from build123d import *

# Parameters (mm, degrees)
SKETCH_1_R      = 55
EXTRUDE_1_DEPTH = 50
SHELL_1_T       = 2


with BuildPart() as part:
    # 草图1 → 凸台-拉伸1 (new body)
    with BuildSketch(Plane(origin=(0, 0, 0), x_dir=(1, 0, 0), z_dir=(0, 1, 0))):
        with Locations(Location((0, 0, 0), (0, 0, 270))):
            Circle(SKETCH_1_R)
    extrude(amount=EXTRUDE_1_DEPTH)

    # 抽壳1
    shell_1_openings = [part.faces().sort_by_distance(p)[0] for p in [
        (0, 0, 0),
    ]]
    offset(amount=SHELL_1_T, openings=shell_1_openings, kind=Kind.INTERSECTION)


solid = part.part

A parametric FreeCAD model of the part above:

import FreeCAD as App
import Part
import Sketcher

V = App.Vector
Q = App.Units.Quantity


def faces_at(feature, points):
    """Names of the faces that lie closest to the given points."""
    faces = feature.Shape.Faces
    near = lambda p: min(range(len(faces)), key=lambda i: faces[i].distToShape(Part.Vertex(*p))[0])
    return sorted({f"Face{near(p) + 1}" for p in points})

doc = App.newDocument("Part")
params = doc.addObject("Spreadsheet::Sheet", "Params")
for row, (alias, value) in enumerate([
    ("sketch1_diameter", "110 mm"),
    ("pad1_length", "50 mm"),
    ("thickness_wall", "2 mm"),
], start=1):
    params.set(f"A{row}", alias)
    params.set(f"B{row}", "=" + value)
    params.setAlias(f"B{row}", alias)

body = doc.addObject("PartDesign::Body", "Body")

sketch1 = body.newObject("Sketcher::SketchObject", "Sketch")
sketch1.AttachmentSupport = (doc.getObject("XZ_Plane"), [""])
sketch1.MapMode = "FlatFace"
sketch1.addGeometry(Part.Circle(V(0, 0, 0), V(0, 0, 1), 55), False)
sketch1.addConstraint(Sketcher.Constraint("Coincident", 0, 3, -1, 1))
sketch1.addConstraint(Sketcher.Constraint("Diameter", 0, Q("110 mm")))
sketch1.setExpression("Constraints[1]", "Params.sketch1_diameter")
pad1 = body.newObject("PartDesign::Pad", "Pad")
pad1.Profile = sketch1
pad1.setExpression("Length", "Params.pad1_length")
pad1.Reversed = True
doc.recompute()

thickness = body.newObject("PartDesign::Thickness", "Thickness")
thickness.Base = (pad1, faces_at(pad1, [(0, 0, 0)]))
thickness.setExpression("Value", "Params.thickness_wall")
thickness.Reversed = False
thickness.Join = "Intersection"

doc.recompute()
